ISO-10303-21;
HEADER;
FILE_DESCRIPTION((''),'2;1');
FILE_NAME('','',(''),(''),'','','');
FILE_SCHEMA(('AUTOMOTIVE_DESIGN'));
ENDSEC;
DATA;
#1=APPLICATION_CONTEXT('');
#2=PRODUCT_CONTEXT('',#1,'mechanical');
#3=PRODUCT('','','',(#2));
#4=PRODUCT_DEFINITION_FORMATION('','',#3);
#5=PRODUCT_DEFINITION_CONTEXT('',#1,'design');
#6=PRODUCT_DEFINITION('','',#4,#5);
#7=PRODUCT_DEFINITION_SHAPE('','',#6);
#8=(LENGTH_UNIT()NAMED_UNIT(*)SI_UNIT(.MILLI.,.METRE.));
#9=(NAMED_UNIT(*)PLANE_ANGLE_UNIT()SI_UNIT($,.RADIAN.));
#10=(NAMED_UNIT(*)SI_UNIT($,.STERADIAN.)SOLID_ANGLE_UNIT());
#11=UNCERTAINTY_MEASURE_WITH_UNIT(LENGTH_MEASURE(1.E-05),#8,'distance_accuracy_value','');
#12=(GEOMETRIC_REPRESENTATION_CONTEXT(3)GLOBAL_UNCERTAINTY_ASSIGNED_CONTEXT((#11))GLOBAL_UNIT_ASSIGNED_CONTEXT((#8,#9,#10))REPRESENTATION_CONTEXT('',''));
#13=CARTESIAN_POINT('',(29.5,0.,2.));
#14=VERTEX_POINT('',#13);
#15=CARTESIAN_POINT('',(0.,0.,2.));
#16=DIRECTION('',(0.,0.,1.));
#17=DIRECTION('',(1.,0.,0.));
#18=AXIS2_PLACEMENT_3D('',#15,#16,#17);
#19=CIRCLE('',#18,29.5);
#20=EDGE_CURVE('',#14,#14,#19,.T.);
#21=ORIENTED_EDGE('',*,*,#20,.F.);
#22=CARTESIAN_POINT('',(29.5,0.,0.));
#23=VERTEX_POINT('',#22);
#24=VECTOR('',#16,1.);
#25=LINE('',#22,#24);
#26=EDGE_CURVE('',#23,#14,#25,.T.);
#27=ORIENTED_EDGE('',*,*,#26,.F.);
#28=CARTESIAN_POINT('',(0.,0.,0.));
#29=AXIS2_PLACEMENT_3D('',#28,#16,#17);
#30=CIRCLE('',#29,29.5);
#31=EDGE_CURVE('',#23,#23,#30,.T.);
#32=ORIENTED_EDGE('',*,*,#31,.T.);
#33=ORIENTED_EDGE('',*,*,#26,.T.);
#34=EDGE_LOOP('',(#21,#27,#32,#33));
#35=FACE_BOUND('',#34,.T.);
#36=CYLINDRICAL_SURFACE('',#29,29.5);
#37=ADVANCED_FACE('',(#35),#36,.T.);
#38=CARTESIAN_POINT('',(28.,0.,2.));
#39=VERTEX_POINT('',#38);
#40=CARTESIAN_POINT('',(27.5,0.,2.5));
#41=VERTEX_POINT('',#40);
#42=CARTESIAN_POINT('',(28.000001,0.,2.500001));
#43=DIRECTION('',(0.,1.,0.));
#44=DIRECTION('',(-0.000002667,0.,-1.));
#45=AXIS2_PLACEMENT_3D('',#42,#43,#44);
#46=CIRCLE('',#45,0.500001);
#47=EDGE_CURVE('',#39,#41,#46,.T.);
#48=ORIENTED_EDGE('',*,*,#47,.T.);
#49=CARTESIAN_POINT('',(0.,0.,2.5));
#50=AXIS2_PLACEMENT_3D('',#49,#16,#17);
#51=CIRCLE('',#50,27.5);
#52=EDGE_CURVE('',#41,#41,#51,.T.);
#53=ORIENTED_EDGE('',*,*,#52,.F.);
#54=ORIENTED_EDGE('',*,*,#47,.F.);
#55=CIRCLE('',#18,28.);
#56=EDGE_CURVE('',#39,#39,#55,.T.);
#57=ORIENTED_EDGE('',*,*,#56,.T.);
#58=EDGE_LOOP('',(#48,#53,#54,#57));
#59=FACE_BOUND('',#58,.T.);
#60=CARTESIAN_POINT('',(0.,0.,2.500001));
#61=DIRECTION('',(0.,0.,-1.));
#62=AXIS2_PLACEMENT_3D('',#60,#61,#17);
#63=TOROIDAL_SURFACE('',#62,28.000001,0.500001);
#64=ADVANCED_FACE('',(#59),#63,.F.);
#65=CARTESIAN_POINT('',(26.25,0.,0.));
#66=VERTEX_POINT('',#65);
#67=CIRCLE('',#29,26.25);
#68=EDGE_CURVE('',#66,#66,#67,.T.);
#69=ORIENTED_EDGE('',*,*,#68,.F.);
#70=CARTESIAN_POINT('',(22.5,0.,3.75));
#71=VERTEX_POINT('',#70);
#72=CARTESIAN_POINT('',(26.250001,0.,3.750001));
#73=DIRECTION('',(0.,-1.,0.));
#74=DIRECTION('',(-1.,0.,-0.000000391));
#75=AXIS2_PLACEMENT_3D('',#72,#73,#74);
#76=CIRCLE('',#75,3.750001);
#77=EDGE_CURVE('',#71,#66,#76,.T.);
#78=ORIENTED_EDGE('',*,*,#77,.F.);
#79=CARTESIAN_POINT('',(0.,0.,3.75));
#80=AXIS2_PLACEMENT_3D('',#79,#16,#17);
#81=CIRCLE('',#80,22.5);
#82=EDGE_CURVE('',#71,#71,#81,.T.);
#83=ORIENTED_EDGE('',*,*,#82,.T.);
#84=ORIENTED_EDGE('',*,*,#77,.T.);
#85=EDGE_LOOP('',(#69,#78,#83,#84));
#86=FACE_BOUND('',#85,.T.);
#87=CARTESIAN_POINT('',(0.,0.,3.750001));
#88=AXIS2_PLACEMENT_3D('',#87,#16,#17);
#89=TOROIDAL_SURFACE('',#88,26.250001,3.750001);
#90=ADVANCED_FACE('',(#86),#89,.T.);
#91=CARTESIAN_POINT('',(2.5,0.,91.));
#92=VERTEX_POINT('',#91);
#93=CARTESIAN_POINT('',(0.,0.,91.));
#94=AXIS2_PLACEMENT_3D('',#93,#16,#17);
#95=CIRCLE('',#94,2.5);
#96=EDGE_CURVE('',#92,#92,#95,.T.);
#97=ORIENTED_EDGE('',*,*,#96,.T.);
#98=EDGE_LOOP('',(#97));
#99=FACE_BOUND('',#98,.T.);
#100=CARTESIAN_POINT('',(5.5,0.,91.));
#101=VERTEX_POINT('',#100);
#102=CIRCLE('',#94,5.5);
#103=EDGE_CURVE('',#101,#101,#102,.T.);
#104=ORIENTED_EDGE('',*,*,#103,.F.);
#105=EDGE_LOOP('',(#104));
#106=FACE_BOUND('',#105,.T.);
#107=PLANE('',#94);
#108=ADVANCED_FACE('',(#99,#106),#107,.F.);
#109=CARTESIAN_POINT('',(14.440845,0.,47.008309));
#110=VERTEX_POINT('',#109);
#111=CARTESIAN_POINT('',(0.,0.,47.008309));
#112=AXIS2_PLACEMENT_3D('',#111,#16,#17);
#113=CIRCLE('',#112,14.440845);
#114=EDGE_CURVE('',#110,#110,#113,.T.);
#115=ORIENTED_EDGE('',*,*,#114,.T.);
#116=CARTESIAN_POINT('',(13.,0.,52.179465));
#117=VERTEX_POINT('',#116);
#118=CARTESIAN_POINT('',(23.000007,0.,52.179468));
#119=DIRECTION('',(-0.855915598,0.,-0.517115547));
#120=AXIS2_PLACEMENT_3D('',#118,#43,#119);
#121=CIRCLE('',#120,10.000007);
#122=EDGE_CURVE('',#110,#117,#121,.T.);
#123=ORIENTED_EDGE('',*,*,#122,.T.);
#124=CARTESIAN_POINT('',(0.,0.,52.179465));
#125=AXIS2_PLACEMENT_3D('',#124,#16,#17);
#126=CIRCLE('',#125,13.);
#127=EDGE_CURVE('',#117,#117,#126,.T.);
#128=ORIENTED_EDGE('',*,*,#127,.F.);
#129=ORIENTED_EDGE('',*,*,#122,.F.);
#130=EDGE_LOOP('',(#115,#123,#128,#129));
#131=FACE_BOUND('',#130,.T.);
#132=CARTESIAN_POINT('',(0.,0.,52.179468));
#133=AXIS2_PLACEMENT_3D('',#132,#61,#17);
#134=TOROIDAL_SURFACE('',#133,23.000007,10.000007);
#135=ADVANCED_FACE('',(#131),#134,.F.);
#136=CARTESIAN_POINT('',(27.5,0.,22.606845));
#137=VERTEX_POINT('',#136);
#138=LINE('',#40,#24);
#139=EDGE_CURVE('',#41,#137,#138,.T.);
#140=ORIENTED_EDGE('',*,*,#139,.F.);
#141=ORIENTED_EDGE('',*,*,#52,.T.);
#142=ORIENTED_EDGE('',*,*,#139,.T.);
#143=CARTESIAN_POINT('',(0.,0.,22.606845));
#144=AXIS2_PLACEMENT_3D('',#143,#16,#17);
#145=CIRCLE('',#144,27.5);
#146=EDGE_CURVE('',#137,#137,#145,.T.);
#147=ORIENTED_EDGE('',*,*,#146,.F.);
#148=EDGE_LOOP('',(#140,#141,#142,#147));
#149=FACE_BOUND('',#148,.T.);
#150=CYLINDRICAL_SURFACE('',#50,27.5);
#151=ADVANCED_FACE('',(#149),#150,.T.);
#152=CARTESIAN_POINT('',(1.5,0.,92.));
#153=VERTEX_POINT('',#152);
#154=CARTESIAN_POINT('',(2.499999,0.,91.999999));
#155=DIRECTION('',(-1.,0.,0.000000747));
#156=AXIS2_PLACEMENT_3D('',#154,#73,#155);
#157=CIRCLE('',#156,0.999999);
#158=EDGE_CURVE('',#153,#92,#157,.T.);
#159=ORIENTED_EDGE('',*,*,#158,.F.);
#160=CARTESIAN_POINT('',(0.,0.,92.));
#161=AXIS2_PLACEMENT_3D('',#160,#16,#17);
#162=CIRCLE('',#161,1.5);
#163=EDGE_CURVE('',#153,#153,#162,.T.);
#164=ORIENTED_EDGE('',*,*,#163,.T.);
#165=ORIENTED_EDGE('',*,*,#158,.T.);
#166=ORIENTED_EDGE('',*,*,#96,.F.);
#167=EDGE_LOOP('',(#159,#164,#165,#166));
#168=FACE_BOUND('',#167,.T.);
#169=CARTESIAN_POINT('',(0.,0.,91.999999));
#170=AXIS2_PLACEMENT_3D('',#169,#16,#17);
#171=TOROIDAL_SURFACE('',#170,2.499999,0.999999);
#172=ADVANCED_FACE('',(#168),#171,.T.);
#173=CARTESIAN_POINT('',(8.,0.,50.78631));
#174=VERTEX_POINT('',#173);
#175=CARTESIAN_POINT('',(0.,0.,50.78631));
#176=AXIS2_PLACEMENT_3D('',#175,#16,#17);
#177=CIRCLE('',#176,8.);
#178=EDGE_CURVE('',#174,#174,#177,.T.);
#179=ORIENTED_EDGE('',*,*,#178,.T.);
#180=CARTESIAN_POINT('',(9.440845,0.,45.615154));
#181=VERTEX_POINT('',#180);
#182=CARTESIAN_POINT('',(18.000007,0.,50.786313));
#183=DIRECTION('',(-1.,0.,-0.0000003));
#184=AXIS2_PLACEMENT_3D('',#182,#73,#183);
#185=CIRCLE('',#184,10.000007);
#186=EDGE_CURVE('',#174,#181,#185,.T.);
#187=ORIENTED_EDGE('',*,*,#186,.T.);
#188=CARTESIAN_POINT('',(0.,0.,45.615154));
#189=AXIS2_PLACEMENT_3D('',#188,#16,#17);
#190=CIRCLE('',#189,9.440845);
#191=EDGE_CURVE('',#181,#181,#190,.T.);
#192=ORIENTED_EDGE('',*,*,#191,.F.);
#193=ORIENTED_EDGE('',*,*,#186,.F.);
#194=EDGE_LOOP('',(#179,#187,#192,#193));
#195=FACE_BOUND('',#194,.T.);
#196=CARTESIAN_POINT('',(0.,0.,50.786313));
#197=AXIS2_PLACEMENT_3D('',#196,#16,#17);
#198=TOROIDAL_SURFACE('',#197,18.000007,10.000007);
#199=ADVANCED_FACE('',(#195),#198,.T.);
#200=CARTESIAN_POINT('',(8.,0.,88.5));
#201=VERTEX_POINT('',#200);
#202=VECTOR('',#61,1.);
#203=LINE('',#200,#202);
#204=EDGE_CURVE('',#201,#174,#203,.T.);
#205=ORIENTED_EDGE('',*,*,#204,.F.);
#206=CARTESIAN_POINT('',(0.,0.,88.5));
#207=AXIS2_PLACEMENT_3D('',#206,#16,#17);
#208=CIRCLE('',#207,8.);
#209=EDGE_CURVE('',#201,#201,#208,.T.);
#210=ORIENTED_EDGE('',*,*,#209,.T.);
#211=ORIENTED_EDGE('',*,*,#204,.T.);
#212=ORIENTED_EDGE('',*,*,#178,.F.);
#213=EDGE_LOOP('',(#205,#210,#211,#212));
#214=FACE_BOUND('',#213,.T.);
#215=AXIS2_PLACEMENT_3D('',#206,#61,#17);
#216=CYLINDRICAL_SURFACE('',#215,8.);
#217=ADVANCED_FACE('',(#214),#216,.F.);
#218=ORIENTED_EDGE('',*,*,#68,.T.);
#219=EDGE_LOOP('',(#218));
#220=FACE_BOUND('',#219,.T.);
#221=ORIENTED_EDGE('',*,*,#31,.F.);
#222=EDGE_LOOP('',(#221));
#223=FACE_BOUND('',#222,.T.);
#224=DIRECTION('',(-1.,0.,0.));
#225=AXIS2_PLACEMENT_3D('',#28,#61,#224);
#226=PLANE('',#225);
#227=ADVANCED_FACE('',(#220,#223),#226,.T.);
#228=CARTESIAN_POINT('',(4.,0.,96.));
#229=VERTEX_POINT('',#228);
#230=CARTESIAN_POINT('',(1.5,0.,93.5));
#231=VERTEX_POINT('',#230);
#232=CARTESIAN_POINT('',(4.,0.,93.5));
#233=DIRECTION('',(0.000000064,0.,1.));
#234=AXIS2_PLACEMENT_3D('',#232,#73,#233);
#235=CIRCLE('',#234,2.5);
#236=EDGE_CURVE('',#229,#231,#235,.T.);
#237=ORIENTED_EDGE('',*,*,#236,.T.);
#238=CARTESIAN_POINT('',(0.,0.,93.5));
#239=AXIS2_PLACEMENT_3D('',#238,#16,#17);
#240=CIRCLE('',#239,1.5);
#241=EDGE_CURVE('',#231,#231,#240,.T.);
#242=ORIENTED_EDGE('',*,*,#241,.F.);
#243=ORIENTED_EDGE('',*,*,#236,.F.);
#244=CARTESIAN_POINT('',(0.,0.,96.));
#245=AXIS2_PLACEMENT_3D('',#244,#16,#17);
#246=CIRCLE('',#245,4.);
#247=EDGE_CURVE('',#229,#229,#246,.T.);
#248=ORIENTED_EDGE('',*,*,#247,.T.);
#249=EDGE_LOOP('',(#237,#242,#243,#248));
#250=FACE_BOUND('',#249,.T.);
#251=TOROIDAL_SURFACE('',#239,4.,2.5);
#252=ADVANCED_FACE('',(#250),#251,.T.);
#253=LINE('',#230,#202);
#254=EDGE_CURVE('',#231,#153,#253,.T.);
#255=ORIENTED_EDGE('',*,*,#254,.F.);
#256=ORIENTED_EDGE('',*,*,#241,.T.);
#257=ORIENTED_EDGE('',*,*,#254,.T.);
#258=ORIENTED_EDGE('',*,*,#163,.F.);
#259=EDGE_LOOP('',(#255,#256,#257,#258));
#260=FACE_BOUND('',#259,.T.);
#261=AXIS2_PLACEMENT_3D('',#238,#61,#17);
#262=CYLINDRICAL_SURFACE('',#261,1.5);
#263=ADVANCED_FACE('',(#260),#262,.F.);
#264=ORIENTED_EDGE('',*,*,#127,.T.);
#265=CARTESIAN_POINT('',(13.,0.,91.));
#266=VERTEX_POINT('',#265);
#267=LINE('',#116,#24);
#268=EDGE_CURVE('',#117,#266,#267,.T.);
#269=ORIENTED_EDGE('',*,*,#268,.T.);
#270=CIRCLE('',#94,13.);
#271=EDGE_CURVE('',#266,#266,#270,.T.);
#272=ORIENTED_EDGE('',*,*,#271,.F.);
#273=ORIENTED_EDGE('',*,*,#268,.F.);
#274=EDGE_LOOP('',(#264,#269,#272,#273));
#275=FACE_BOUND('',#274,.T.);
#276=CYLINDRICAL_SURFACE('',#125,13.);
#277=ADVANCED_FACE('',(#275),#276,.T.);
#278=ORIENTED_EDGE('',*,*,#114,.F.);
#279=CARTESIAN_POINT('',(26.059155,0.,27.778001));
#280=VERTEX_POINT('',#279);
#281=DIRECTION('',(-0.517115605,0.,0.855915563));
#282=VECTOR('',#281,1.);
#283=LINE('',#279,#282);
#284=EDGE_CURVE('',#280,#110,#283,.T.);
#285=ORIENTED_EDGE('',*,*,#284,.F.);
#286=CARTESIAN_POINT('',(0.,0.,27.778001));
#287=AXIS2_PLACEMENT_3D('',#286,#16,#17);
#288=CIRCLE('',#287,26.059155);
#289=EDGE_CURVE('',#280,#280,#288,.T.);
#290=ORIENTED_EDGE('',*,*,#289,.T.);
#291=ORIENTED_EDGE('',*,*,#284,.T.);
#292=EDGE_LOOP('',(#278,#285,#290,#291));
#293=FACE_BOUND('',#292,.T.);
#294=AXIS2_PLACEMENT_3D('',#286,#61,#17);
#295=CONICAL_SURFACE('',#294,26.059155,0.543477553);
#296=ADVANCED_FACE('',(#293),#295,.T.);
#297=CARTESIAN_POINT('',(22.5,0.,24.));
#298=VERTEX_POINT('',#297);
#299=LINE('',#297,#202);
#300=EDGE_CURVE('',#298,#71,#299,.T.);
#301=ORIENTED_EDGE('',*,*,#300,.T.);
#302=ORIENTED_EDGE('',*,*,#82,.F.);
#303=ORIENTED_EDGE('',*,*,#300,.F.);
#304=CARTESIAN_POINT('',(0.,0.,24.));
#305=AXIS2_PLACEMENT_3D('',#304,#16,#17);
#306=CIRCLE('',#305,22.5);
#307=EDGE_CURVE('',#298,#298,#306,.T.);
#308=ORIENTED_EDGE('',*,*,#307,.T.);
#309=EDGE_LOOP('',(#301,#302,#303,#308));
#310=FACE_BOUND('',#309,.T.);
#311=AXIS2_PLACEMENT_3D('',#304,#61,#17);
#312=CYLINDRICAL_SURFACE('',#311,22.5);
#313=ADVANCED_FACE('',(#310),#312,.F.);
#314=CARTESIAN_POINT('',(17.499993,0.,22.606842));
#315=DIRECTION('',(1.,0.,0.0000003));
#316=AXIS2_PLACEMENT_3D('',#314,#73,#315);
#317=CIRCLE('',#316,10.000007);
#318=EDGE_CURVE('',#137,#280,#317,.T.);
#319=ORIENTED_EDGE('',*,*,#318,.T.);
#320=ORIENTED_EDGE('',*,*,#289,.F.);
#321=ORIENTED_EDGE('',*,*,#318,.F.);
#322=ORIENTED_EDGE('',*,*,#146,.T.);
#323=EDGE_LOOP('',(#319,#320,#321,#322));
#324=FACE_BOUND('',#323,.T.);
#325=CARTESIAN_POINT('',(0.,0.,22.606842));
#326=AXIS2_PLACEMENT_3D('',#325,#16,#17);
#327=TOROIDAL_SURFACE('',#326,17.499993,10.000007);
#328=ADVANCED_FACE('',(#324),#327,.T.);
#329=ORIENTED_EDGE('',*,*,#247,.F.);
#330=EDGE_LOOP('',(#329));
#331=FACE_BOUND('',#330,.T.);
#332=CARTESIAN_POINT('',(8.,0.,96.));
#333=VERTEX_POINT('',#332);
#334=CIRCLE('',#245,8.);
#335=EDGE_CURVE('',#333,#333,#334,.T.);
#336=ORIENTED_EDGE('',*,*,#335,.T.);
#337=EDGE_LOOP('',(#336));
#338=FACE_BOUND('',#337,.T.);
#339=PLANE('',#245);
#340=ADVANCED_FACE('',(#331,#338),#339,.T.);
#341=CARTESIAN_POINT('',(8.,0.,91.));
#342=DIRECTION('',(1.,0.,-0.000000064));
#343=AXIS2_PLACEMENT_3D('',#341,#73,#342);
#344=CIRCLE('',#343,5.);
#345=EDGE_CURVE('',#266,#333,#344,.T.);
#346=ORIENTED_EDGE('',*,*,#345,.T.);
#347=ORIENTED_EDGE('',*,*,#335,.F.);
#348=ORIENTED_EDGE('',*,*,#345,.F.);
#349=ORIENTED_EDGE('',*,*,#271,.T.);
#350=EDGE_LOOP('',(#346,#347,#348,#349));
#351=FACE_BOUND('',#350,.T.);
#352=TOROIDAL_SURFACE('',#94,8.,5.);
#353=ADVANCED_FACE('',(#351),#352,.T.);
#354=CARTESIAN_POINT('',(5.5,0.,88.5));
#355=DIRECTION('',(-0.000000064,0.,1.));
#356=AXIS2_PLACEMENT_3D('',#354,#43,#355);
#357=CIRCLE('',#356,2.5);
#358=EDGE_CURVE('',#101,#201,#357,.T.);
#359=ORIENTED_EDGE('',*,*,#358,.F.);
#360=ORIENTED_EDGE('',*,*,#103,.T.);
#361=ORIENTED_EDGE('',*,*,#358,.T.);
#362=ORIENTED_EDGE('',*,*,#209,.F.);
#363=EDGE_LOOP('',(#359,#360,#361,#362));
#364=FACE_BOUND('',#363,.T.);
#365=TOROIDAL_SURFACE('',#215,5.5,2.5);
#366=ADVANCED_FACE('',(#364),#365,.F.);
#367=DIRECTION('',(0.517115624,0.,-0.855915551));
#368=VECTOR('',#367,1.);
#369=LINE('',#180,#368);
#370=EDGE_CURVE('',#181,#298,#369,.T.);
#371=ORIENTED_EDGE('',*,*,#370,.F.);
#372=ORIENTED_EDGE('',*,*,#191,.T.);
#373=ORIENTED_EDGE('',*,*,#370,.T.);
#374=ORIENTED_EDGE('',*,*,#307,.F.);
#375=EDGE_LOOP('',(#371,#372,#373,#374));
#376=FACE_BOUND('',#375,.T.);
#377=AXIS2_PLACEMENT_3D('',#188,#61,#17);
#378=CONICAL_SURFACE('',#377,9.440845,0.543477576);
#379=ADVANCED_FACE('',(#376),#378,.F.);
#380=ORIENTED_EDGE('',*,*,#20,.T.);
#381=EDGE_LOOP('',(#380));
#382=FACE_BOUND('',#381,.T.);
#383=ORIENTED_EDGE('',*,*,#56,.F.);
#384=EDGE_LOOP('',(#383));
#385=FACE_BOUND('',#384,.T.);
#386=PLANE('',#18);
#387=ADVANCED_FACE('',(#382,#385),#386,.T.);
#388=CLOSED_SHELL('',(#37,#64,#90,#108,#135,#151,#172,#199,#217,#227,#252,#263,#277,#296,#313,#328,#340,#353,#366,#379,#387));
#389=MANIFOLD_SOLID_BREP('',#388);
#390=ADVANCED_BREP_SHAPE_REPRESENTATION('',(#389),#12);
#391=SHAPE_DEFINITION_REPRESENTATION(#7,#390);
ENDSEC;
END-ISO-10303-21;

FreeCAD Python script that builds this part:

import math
import FreeCAD as App
import Part
import Sketcher
from FreeCAD import Vector

doc = App.newDocument("Part")
body = doc.addObject("PartDesign::Body", "Body")

sketch1 = body.newObject("Sketcher::SketchObject", "Sketch")
sketch1.AttachmentSupport = (doc.getObject("XZ_Plane"), [""])
sketch1.MapMode = "FlatFace"
sketch1.addGeometry(Part.LineSegment(Vector(22.5, 24, 0), Vector(22.5, 3.75, 0)), False)
sketch1.addGeometry(Part.ArcOfCircle(Part.Circle(Vector(26.250001, 3.750001, 0), Vector(0, 0, 1), 3.750001), math.radians(-179.999978), math.radians(-90.000022)), False)
sketch1.addGeometry(Part.LineSegment(Vector(26.25, 0, 0), Vector(29.5, 0, 0)), False)
sketch1.addGeometry(Part.LineSegment(Vector(29.5, 0, 0), Vector(29.5, 2, 0)), False)
sketch1.addGeometry(Part.LineSegment(Vector(29.5, 2, 0), Vector(28, 2, 0)), False)
sketch1.addGeometry(Part.ArcOfCircle(Part.Circle(Vector(28.000001, 2.500001, 0), Vector(0, 0, 1), 0.500001), math.radians(-179.999847), math.radians(-90.000153)), False)
sketch1.addGeometry(Part.LineSegment(Vector(27.5, 2.5, 0), Vector(27.5, 22.606845, 0)), False)
sketch1.addGeometry(Part.ArcOfCircle(Part.Circle(Vector(17.499993, 22.606842, 0), Vector(0, 0, 1), 10.000007), math.radians(0.000017), math.radians(31.138966)), False)
sketch1.addGeometry(Part.LineSegment(Vector(26.059155, 27.778001, 0), Vector(14.440845, 47.008309, 0)), False)
sketch1.addGeometry(Part.ArcOfCircle(Part.Circle(Vector(23.000007, 52.179468, 0), Vector(0, 0, 1), 10.000007), math.radians(-179.999983), math.radians(-148.861034)), False)
sketch1.addGeometry(Part.LineSegment(Vector(13, 52.179465, 0), Vector(13, 91, 0)), False)
sketch1.addGeometry(Part.ArcOfCircle(Part.Circle(Vector(8, 91, 0), Vector(0, 0, 1), 5), math.radians(-0.000004), math.radians(90.000004)), False)
sketch1.addGeometry(Part.LineSegment(Vector(8, 96, 0), Vector(4, 96, 0)), False)
sketch1.addGeometry(Part.ArcOfCircle(Part.Circle(Vector(4, 93.5, 0), Vector(0, 0, 1), 2.5), math.radians(89.999996), math.radians(180.000004)), False)
sketch1.addGeometry(Part.LineSegment(Vector(1.5, 93.5, 0), Vector(1.5, 92, 0)), False)
sketch1.addGeometry(Part.ArcOfCircle(Part.Circle(Vector(2.499999, 91.999999, 0), Vector(0, 0, 1), 0.999999), math.radians(179.999957), math.radians(270.000043)), False)
sketch1.addGeometry(Part.LineSegment(Vector(2.5, 91, 0), Vector(5.5, 91, 0)), False)
sketch1.addGeometry(Part.ArcOfCircle(Part.Circle(Vector(5.5, 88.5, 0), Vector(0, 0, 1), 2.5), math.radians(-0.000004), math.radians(90.000004)), False)
sketch1.addGeometry(Part.LineSegment(Vector(8, 88.5, 0), Vector(8, 50.78631, 0)), False)
sketch1.addGeometry(Part.ArcOfCircle(Part.Circle(Vector(18.000007, 50.786313, 0), Vector(0, 0, 1), 10.000007), math.radians(-179.999983), math.radians(-148.861034)), False)
sketch1.addGeometry(Part.LineSegment(Vector(9.440845, 45.615154, 0), Vector(22.5, 24, 0)), False)
sketch1.addConstraint(Sketcher.Constraint("Coincident", 0, 2, 1, 1))
sketch1.addConstraint(Sketcher.Constraint("Coincident", 1, 2, 2, 1))
sketch1.addConstraint(Sketcher.Constraint("Coincident", 2, 2, 3, 1))
sketch1.addConstraint(Sketcher.Constraint("Coincident", 3, 2, 4, 1))
sketch1.addConstraint(Sketcher.Constraint("Coincident", 4, 2, 5, 2))
sketch1.addConstraint(Sketcher.Constraint("Coincident", 5, 1, 6, 1))
sketch1.addConstraint(Sketcher.Constraint("Coincident", 6, 2, 7, 1))
sketch1.addConstraint(Sketcher.Constraint("Coincident", 7, 2, 8, 1))
sketch1.addConstraint(Sketcher.Constraint("Coincident", 8, 2, 9, 2))
sketch1.addConstraint(Sketcher.Constraint("Coincident", 9, 1, 10, 1))
sketch1.addConstraint(Sketcher.Constraint("Coincident", 10, 2, 11, 1))
sketch1.addConstraint(Sketcher.Constraint("Coincident", 11, 2, 12, 1))
sketch1.addConstraint(Sketcher.Constraint("Coincident", 12, 2, 13, 1))
sketch1.addConstraint(Sketcher.Constraint("Coincident", 13, 2, 14, 1))
sketch1.addConstraint(Sketcher.Constraint("Coincident", 14, 2, 15, 1))
sketch1.addConstraint(Sketcher.Constraint("Coincident", 15, 2, 16, 1))
sketch1.addConstraint(Sketcher.Constraint("Coincident", 16, 2, 17, 2))
sketch1.addConstraint(Sketcher.Constraint("Coincident", 17, 1, 18, 1))
sketch1.addConstraint(Sketcher.Constraint("Coincident", 18, 2, 19, 1))
sketch1.addConstraint(Sketcher.Constraint("Coincident", 19, 2, 20, 1))
sketch1.addConstraint(Sketcher.Constraint("Coincident", 20, 2, 0, 1))
sketch1.addConstraint(Sketcher.Constraint("Vertical", 0))
sketch1.addConstraint(Sketcher.Constraint("Horizontal", 2))
sketch1.addConstraint(Sketcher.Constraint("Vertical", 3))
sketch1.addConstraint(Sketcher.Constraint("Horizontal", 4))
sketch1.addConstraint(Sketcher.Constraint("Vertical", 6))
sketch1.addConstraint(Sketcher.Constraint("Vertical", 10))
sketch1.addConstraint(Sketcher.Constraint("Horizontal", 12))
sketch1.addConstraint(Sketcher.Constraint("Vertical", 14))
sketch1.addConstraint(Sketcher.Constraint("Horizontal", 16))
sketch1.addConstraint(Sketcher.Constraint("Vertical", 18))
sketch1.addConstraint(Sketcher.Constraint("PointOnObject", 1, 2, -1))
sketch1.addConstraint(Sketcher.Constraint("Radius", 11, 5.0))
sketch1.addConstraint(Sketcher.Constraint("Radius", 15, 0.999999))
sketch1.addConstraint(Sketcher.Constraint("Radius", 5, 0.500001))
sketch1.addConstraint(Sketcher.Constraint("Radius", 13, 2.5))
sketch1.addConstraint(Sketcher.Constraint("Radius", 17, 2.5))
sketch1.addConstraint(Sketcher.Constraint("DistanceX", 12, 2, 12, 1, 4.0))
sketch1.addConstraint(Sketcher.Constraint("DistanceX", 16, 1, 16, 2, 3.0))
sketch1.addConstraint(Sketcher.Constraint("DistanceY", 3, 1, 3, 2, 2.0))
sketch1.addConstraint(Sketcher.Constraint("Radius", 1, 3.750001))
sketch1.addConstraint(Sketcher.Constraint("DistanceX", 4, 2, 4, 1, 1.5))
sketch1.addConstraint(Sketcher.Constraint("DistanceY", 14, 2, 14, 1, 1.5))
sketch1.addConstraint(Sketcher.Constraint("DistanceX", -1, 1, 5, 3, 28.000001))
sketch1.addConstraint(Sketcher.Constraint("DistanceX", -1, 1, 11, 3, 8.0))
sketch1.addConstraint(Sketcher.Constraint("DistanceY", -1, 1, 11, 3, 91.0))
sketch1.addConstraint(Sketcher.Constraint("DistanceX", -1, 1, 13, 3, 4.0))
sketch1.addConstraint(Sketcher.Constraint("DistanceY", -1, 1, 15, 3, 91.999999))
sketch1.addConstraint(Sketcher.Constraint("DistanceX", -1, 1, 4, 2, 28.0))
sketch1.addConstraint(Sketcher.Constraint("DistanceY", -1, 1, 10, 2, 91.0))
sketch1.addConstraint(Sketcher.Constraint("DistanceX", -1, 1, 11, 2, 8.0))
sketch1.addConstraint(Sketcher.Constraint("DistanceY", -1, 1, 14, 2, 92.0))
sketch1.addConstraint(Sketcher.Constraint("DistanceX", -1, 1, 17, 1, 8.0))
sketch1.addConstraint(Sketcher.Constraint("DistanceY", -1, 1, 20, 2, 24.0))
sketch1.addConstraint(Sketcher.Constraint("DistanceX", 19, 3, 9, 3, 5.0))
sketch1.addConstraint(Sketcher.Constraint("DistanceX", 0, 2, 2, 2, 7.0))
sketch1.addConstraint(Sketcher.Constraint("DistanceX", 14, 2, 15, 2, 1.0))
sketch1.addConstraint(Sketcher.Constraint("DistanceX", 19, 2, 8, 2, 5.0))
sketch1.addConstraint(Sketcher.Constraint("DistanceX", 2, 1, 2, 2, 3.25))
sketch1.addConstraint(Sketcher.Constraint("DistanceY", 0, 2, 0, 1, 20.25))
sketch1.addConstraint(Sketcher.Constraint("DistanceY", -1, 1, 5, 1, 2.5))
sketch1.addConstraint(Sketcher.Constraint("DistanceY", -1, 1, 17, 1, 88.5))
sketch1.addConstraint(Sketcher.Constraint("DistanceY", -1, 1, 7, 2, 27.778001))
sketch1.addConstraint(Sketcher.Constraint("Radius", 7, 10.000007))
sketch1.addConstraint(Sketcher.Constraint("Radius", 9, 10.000007))
sketch1.addConstraint(Sketcher.Constraint("DistanceY", 8, 2, 18, 2, 3.778001))
sketch1.addConstraint(Sketcher.Constraint("DistanceY", 18, 2, 18, 1, 37.71369))
sketch1.addConstraint(Sketcher.Constraint("Distance", 8, 22.467529))
sketch1.addConstraint(Sketcher.Constraint("Distance", 20, 25.25384))
sketch1.addConstraint(Sketcher.Constraint("DistanceY", 6, 1, 6, 2, 20.106845))
sketch1.addConstraint(Sketcher.Constraint("DistanceY", 10, 1, 10, 2, 38.820535))
sketch1.addConstraint(Sketcher.Constraint("DistanceY", 1, 3, 7, 3, 18.856841))
revolution = body.newObject("PartDesign::Revolution", "Revolution")
revolution.Profile = sketch1
revolution.ReferenceAxis = (sketch1, ["V_Axis"])
revolution.Angle = 360

doc.recompute()
